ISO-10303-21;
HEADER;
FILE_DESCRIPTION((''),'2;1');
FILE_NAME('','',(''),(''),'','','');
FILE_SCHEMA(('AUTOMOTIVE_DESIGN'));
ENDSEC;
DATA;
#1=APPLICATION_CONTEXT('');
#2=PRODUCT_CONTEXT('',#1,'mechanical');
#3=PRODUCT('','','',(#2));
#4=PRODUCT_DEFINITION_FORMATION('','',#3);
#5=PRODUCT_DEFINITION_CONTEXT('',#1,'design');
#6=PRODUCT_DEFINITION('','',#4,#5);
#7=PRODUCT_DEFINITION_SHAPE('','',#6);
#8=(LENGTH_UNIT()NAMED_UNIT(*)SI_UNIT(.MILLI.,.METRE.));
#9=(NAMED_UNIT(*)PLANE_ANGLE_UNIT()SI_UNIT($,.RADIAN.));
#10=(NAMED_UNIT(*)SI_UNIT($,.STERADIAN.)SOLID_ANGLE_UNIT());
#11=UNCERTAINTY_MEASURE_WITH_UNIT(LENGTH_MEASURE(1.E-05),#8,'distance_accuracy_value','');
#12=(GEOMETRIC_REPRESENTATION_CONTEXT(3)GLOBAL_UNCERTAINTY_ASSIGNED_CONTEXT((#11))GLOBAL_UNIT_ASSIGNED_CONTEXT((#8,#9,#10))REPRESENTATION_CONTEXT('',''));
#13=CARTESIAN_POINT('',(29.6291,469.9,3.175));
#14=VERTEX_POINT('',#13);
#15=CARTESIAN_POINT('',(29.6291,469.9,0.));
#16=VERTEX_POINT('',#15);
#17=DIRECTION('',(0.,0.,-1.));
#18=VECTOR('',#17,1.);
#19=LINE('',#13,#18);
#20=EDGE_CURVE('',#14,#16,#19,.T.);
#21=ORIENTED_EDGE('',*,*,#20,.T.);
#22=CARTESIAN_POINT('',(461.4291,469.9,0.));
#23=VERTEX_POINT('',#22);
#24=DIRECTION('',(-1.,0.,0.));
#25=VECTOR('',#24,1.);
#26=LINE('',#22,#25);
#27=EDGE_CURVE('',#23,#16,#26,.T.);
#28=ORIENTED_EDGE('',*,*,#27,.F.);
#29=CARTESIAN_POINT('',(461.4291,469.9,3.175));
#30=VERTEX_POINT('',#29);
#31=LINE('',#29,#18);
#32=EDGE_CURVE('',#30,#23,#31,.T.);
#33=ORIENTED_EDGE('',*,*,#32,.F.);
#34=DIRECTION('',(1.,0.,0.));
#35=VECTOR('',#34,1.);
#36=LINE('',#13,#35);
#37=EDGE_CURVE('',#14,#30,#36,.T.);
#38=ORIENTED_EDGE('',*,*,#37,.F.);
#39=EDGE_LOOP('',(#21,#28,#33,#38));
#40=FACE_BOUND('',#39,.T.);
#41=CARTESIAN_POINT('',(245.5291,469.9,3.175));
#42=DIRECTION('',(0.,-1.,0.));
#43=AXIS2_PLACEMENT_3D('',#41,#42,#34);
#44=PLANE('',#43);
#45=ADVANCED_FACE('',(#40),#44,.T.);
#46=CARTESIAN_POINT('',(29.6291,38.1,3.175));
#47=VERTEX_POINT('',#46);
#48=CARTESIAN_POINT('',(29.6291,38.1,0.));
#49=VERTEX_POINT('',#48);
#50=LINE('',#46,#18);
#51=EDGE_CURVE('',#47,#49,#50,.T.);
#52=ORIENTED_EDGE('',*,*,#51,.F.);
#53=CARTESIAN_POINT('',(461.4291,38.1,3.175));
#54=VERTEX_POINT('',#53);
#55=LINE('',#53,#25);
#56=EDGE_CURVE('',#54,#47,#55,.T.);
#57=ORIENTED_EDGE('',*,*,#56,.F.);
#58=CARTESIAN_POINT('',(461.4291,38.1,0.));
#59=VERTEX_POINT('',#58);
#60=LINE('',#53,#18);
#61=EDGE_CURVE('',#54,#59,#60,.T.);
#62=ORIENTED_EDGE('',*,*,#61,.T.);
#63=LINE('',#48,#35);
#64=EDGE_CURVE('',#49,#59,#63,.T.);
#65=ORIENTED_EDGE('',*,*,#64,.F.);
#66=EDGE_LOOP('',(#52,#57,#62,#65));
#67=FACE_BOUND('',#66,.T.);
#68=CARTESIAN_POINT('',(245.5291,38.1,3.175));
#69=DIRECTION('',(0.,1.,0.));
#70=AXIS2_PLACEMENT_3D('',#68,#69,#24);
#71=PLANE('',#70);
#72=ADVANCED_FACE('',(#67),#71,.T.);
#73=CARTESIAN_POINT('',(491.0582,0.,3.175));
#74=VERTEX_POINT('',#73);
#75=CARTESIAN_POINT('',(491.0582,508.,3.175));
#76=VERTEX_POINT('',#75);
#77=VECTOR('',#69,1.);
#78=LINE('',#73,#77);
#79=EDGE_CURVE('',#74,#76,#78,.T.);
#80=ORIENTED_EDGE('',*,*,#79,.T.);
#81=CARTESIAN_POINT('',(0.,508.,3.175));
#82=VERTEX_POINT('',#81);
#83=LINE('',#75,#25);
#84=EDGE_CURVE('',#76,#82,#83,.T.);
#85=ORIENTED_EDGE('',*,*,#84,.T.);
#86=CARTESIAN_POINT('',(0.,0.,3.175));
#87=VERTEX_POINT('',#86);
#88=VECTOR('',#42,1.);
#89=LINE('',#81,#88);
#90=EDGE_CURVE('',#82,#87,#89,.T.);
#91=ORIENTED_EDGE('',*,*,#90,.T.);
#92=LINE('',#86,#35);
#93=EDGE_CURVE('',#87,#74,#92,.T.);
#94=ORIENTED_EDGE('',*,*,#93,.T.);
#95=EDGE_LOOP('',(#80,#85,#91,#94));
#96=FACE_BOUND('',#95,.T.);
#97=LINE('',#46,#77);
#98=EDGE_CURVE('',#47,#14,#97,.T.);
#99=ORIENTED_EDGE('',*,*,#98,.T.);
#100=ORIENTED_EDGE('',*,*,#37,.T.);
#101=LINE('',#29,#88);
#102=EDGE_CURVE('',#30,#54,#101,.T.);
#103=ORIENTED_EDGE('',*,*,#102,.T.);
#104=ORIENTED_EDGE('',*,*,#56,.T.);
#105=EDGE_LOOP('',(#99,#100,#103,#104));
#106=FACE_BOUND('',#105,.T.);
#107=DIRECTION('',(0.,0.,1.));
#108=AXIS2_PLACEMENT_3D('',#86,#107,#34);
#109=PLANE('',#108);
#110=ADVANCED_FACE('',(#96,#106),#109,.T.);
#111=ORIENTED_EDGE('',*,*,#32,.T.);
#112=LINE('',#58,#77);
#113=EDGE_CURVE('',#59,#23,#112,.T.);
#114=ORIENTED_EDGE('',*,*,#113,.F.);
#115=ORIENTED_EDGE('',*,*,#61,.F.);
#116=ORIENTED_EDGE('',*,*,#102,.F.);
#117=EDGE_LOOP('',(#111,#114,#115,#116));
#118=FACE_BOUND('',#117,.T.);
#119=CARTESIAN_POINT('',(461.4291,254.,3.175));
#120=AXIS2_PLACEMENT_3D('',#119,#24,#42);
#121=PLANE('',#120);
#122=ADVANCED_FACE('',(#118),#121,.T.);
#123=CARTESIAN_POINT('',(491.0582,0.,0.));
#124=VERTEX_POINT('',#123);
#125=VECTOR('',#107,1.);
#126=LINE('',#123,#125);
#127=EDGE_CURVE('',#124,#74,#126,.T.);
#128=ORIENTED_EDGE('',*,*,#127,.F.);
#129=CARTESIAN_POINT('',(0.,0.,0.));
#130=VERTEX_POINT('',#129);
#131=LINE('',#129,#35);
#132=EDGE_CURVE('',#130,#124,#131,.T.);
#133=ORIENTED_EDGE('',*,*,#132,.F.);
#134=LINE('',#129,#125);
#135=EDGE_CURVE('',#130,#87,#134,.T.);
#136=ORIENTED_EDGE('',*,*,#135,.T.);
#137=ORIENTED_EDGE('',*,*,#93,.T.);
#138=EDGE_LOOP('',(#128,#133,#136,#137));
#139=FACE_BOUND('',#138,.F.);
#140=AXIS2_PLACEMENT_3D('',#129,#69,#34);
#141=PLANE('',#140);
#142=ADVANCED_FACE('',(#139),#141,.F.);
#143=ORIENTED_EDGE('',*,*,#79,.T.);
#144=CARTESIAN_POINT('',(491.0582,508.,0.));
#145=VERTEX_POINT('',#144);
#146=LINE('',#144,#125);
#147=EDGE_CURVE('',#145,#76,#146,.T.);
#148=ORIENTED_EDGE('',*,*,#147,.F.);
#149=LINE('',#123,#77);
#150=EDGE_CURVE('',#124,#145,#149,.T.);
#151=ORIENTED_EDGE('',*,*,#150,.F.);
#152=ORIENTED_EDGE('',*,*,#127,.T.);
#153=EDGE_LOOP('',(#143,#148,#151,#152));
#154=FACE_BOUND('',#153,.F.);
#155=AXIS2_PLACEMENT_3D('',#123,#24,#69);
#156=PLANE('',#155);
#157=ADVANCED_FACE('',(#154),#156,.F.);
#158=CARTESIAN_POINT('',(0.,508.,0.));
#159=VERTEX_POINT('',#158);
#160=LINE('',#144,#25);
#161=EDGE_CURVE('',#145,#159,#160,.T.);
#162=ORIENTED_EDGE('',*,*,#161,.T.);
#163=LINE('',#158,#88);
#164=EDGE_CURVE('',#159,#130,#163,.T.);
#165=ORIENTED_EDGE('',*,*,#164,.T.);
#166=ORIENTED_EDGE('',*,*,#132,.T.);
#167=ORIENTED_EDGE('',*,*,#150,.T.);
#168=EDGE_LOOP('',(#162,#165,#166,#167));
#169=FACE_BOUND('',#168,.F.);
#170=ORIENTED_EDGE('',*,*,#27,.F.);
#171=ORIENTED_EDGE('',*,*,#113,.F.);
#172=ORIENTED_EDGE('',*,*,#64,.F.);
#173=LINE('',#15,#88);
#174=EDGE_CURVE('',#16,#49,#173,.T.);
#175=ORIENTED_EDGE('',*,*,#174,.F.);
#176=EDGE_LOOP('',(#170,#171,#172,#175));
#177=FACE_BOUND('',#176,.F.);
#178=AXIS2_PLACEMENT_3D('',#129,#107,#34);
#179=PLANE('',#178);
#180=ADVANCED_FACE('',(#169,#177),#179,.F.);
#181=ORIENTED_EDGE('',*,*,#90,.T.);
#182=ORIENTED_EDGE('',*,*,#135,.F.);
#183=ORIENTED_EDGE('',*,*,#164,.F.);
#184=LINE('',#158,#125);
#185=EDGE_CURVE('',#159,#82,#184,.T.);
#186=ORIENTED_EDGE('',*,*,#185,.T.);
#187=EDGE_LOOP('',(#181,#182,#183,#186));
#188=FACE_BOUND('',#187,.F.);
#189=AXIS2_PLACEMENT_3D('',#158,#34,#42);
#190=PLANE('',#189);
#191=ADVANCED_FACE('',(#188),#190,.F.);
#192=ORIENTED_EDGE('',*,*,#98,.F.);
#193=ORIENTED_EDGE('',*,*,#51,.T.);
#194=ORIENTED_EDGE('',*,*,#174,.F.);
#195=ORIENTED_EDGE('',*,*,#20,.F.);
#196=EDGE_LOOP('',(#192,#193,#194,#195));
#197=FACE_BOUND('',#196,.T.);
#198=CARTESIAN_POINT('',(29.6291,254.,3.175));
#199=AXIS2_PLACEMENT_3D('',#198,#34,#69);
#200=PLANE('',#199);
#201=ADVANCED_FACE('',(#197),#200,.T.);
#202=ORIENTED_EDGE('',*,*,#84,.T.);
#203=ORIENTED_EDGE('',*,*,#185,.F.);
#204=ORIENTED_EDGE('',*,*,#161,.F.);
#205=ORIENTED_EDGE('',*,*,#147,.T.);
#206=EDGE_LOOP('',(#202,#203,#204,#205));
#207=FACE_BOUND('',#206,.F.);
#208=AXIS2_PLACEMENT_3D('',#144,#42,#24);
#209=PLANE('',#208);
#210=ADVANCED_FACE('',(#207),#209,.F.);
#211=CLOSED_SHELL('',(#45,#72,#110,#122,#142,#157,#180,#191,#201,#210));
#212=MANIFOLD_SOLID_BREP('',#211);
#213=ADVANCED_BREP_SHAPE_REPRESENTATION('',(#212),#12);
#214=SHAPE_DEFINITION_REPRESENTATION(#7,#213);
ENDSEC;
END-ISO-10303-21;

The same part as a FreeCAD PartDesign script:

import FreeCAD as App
import Part
import Sketcher
Q = App.Units.Quantity


def add_polygon(sketch, points):
    """Adds a closed chain of lines whose ends are joined by coincident constraints."""
    first, n = sketch.GeometryCount, len(points)
    for a, b in zip(points, points[1:] + points[:1]):
        sketch.addGeometry(Part.LineSegment(App.Vector(*a, 0), App.Vector(*b, 0)), False)
    for i in range(n):
        sketch.addConstraint(Sketcher.Constraint("Coincident", first + i, 2, first + (i + 1) % n, 1))

doc = App.newDocument("Part")
params = doc.addObject("Spreadsheet::Sheet", "Params")
for row, (alias, value) in enumerate([
    ("sketch1_height", "20 in"),
    ("sketch1_width", "19.333 in"),
    ("pad1_length", "0.125 in"),
    ("sketch2_width", "17 in"),
    ("pocket1_length", "0.125 in"),
], start=1):
    params.set(f"A{row}", alias)
    params.set(f"B{row}", "=" + value)
    params.setAlias(f"B{row}", alias)

body = doc.addObject("PartDesign::Body", "Body")

# Sketch on XY plane
sketch1 = body.newObject("Sketcher::SketchObject", "Sketch")
sketch1.AttachmentSupport = (doc.getObject("XY_Plane"), [""])
sketch1.MapMode = "FlatFace"
add_polygon(sketch1, [(0, 508), (0, 0), (491.0582, 0), (491.0582, 508)])  # lines 0-3
sketch1.addConstraint([
    Sketcher.Constraint("Vertical", 0),
    Sketcher.Constraint("Horizontal", 1),
    Sketcher.Constraint("Vertical", 2),
    Sketcher.Constraint("Horizontal", 3),
    Sketcher.Constraint("Coincident", 0, 2, -1, 1),
    Sketcher.Constraint("DistanceY", 0, 2, 0, 1, Q("20 in")),
    Sketcher.Constraint("DistanceX", 1, 1, 1, 2, Q("19.333 in")),
])
sketch1.setExpression("Constraints[9]", "Params.sketch1_height")
sketch1.setExpression("Constraints[10]", "Params.sketch1_width")
pad1 = body.newObject("PartDesign::Pad", "Pad")
pad1.Profile = sketch1
pad1.setExpression("Length", "Params.pad1_length")

# Sketch on XY plane
sketch2 = body.newObject("Sketcher::SketchObject", "Sketch001")
sketch2.AttachmentSupport = (doc.getObject("XY_Plane"), [""])
sketch2.MapMode = "FlatFace"
sketch2.AttachmentOffset = App.Placement(App.Vector(0, 0, 0.125 * 25.4), App.Rotation())
add_polygon(sketch2, [(461.4291, 469.9), (29.6291, 469.9), (29.6291, 38.1), (461.4291, 38.1)])  # lines 0-3
sketch2.addConstraint([
    Sketcher.Constraint("Horizontal", 0),
    Sketcher.Constraint("Vertical", 1),
    Sketcher.Constraint("Horizontal", 2),
    Sketcher.Constraint("Vertical", 3),
    Sketcher.Constraint("Equal", 2, 1),
    Sketcher.Constraint("DistanceX", 0, 2, 0, 1, Q("17 in")),
    Sketcher.Constraint("DistanceY", -1, 1, 0, 2, Q("18.5 in")),
    Sketcher.Constraint("DistanceX", -1, 1, 0, 2, Q("1.1665 in")),
])
sketch2.setExpression("Constraints[9]", "Params.sketch2_width")
pocket1 = body.newObject("PartDesign::Pocket", "Pocket")
pocket1.Profile = sketch2
pocket1.setExpression("Length", "Params.pocket1_length")

doc.recompute()
